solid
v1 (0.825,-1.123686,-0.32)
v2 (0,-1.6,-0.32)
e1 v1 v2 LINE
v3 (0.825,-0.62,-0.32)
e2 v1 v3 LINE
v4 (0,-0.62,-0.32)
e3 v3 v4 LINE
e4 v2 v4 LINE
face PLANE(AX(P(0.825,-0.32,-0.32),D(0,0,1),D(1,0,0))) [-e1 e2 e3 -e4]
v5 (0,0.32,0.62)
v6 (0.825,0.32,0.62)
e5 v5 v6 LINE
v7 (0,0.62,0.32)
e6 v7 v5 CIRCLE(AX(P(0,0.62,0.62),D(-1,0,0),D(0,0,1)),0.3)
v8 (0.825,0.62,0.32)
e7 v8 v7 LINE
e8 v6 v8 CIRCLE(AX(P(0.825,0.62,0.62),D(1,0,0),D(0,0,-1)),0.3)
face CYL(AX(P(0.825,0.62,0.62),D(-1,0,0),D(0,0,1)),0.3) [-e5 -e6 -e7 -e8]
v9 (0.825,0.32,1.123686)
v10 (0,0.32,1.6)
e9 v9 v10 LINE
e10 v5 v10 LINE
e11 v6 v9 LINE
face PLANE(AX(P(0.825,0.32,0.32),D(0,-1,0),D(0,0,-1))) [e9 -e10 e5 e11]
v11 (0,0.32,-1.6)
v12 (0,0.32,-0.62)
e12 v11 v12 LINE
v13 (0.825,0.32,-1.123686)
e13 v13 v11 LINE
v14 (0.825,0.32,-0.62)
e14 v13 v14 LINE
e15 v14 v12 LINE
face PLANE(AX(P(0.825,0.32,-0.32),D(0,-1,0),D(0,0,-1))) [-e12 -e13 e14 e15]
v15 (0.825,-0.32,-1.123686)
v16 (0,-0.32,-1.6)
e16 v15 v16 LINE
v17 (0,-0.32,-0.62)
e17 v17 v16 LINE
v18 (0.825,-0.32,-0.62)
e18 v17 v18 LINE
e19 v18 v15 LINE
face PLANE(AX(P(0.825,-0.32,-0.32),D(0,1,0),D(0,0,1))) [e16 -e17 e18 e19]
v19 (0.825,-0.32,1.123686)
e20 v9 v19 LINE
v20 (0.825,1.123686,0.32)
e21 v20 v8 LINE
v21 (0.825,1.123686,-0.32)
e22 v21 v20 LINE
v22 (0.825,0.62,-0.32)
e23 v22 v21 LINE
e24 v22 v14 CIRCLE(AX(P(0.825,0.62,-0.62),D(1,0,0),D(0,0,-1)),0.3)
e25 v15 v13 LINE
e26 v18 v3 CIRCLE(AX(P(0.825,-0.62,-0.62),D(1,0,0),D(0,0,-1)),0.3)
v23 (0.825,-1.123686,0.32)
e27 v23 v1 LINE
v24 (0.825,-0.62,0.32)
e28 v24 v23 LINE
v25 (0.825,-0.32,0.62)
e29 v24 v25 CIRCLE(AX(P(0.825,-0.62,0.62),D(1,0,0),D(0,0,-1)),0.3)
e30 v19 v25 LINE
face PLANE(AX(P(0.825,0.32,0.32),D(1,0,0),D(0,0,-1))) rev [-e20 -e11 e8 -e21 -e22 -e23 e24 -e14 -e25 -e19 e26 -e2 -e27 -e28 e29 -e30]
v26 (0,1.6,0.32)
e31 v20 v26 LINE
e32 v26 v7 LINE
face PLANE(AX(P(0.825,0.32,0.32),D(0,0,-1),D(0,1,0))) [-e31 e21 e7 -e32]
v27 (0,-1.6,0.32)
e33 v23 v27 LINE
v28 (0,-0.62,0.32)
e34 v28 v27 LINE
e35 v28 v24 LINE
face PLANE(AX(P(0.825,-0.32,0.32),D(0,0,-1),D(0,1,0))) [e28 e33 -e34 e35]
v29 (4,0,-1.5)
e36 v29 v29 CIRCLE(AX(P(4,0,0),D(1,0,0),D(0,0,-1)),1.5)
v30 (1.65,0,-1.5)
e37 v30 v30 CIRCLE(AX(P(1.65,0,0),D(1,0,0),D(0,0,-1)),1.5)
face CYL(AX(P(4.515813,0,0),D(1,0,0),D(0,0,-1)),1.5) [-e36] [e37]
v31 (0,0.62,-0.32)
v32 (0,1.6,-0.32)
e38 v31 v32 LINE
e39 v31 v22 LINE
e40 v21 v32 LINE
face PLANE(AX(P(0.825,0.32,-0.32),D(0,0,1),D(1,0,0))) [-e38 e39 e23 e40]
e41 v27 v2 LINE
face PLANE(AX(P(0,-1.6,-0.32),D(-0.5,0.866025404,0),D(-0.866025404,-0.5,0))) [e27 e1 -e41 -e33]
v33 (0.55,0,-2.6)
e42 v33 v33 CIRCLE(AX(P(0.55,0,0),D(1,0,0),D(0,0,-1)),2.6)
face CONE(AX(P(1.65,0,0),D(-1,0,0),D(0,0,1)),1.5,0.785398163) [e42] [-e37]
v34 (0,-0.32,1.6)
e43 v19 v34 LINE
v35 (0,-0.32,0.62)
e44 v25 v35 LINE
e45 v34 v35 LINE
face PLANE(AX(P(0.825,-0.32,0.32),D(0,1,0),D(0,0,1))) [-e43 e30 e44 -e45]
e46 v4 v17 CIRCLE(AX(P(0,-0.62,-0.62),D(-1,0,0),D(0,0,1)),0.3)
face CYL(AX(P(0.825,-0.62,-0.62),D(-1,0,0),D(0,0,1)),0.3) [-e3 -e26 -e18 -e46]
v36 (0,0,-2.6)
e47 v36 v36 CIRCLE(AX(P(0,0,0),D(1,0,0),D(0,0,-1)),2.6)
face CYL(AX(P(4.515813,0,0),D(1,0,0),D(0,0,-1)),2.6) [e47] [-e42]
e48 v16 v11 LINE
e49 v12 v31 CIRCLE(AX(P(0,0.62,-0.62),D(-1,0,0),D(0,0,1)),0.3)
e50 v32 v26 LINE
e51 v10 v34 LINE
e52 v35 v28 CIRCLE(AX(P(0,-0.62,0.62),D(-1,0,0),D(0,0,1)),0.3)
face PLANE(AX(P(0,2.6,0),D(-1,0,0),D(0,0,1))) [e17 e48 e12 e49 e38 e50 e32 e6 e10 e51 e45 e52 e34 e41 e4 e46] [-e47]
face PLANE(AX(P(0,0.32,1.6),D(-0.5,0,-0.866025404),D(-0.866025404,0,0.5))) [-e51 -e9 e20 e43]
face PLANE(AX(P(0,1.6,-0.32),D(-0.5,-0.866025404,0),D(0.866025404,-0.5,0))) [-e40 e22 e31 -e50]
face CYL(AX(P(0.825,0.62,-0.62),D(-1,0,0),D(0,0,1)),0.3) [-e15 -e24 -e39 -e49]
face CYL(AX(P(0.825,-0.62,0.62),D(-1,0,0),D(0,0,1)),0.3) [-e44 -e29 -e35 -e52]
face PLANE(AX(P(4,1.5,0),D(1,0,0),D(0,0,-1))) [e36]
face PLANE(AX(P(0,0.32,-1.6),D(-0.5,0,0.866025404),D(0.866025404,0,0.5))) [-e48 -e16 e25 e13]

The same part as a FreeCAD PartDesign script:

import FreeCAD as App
import Part
import Sketcher
Q = App.Units.Quantity


def edges_at(feature, points):
    """Names of the edges that pass closest to the given points."""
    edges = feature.Shape.Edges
    near = lambda p: min(range(len(edges)), key=lambda i: edges[i].distToShape(Part.Vertex(*p))[0])
    return sorted({f"Edge{near(p) + 1}" for p in points})


def faces_at(feature, points):
    """Names of the faces that lie closest to the given points."""
    faces = feature.Shape.Faces
    near = lambda p: min(range(len(faces)), key=lambda i: faces[i].distToShape(Part.Vertex(*p))[0])
    return sorted({f"Face{near(p) + 1}" for p in points})


def add_polygon(sketch, points):
    """Adds a closed chain of lines whose ends are joined by coincident constraints."""
    first, n = sketch.GeometryCount, len(points)
    for a, b in zip(points, points[1:] + points[:1]):
        sketch.addGeometry(Part.LineSegment(App.Vector(*a, 0), App.Vector(*b, 0)), False)
    for i in range(n):
        sketch.addConstraint(Sketcher.Constraint("Coincident", first + i, 2, first + (i + 1) % n, 1))

doc = App.newDocument("Part")
params = doc.addObject("Spreadsheet::Sheet", "Params")
for row, (alias, value) in enumerate([
    ("sketch1_width", "4 mm"),
    ("sketch1_height", "2.6 mm"),
    ("sketch1_height2", "1.5 mm"),
    ("sketch1_width2", "2.35 mm"),
    ("revolution_angle", "360 deg"),
    ("sketch2_width", "1.28 mm"),
    ("sketch2_width2", "0.64 mm"),
    ("pocket1_length", "0.825 mm"),
    ("draft_angle", "30 deg"),
    ("fillet_radius", "0.3 mm"),
], start=1):
    params.set(f"A{row}", alias)
    params.set(f"B{row}", "=" + value)
    params.setAlias(f"B{row}", alias)

body = doc.addObject("PartDesign::Body", "Body")

# Sketch on XY plane
sketch1 = body.newObject("Sketcher::SketchObject", "Sketch")
sketch1.AttachmentSupport = (doc.getObject("XY_Plane"), [""])
sketch1.MapMode = "FlatFace"
add_polygon(sketch1, [(4, 1.5), (1.65, 1.5), (0.55, 2.6), (0, 2.6), (0, 0), (4, 0)])  # lines 0-5
sketch1.addConstraint([
    Sketcher.Constraint("Horizontal", 0),
    Sketcher.Constraint("Horizontal", 2),
    Sketcher.Constraint("Vertical", 3),
    Sketcher.Constraint("Horizontal", 4),
    Sketcher.Constraint("Vertical", 5),
    Sketcher.Constraint("Coincident", 3, 2, -1, 1),
    Sketcher.Constraint("DistanceX", 4, 1, 4, 2, 4.0),
    Sketcher.Constraint("Angle", 1, Q("135 deg")),
    Sketcher.Constraint("DistanceY", 3, 2, 3, 1, 2.6),
    Sketcher.Constraint("DistanceY", 5, 1, 5, 2, 1.5),
    Sketcher.Constraint("DistanceX", 0, 2, 0, 1, 2.35),
])
sketch1.setExpression("Constraints[12]", "Params.sketch1_width")
sketch1.setExpression("Constraints[14]", "Params.sketch1_height")
sketch1.setExpression("Constraints[15]", "Params.sketch1_height2")
sketch1.setExpression("Constraints[16]", "Params.sketch1_width2")
revolution = body.newObject("PartDesign::Revolution", "Revolution")
revolution.Profile = sketch1
revolution.ReferenceAxis = (sketch1, ["H_Axis"])
revolution.setExpression("Angle", "Params.revolution_angle")

# Sketch on YZ plane
sketch2 = body.newObject("Sketcher::SketchObject", "Sketch001")
sketch2.AttachmentSupport = (doc.getObject("YZ_Plane"), [""])
sketch2.MapMode = "FlatFace"
add_polygon(sketch2, [(0.32, -0.32), (1.6, -0.32), (1.6, 0.32), (0.32, 0.32), (0.32, 1.6), (-0.32, 1.6), (-0.32, 0.32), (-1.6, 0.32), (-1.6, -0.32), (-0.32, -0.32), (-0.32, -1.6), (0.32, -1.6)])  # lines 0-11
sketch2.addConstraint([
    Sketcher.Constraint("Horizontal", 0),
    Sketcher.Constraint("Vertical", 1),
    Sketcher.Constraint("Horizontal", 2),
    Sketcher.Constraint("Vertical", 3),
    Sketcher.Constraint("Horizontal", 4),
    Sketcher.Constraint("Vertical", 5),
    Sketcher.Constraint("Horizontal", 6),
    Sketcher.Constraint("Vertical", 7),
    Sketcher.Constraint("Horizontal", 8),
    Sketcher.Constraint("Vertical", 9),
    Sketcher.Constraint("Horizontal", 10),
    Sketcher.Constraint("Vertical", 11),
    Sketcher.Constraint("Symmetric", 0, 2, 6, 2, -1, 1),
    Sketcher.Constraint("Symmetric", 2, 2, 8, 2, -1, 1),
    Sketcher.Constraint("Symmetric", 4, 2, 10, 2, -1, 1),
    Sketcher.Constraint("Symmetric", 2, 2, 5, 2, -2),
    Sketcher.Constraint("Equal", 10, 1),
    Sketcher.Constraint("Equal", 8, 3),
    Sketcher.Constraint("DistanceX", 0, 1, 0, 2, 1.28),
    Sketcher.Constraint("DistanceX", 4, 2, 4, 1, 0.64),
])
sketch2.setExpression("Constraints[30]", "Params.sketch2_width")
sketch2.setExpression("Constraints[31]", "Params.sketch2_width2")
pocket1 = body.newObject("PartDesign::Pocket", "Pocket")
pocket1.Profile = sketch2
pocket1.setExpression("Length", "Params.pocket1_length")
pocket1.Reversed = True
doc.recompute()

draft = body.newObject("PartDesign::Draft", "Draft")
draft.Base = (pocket1, faces_at(pocket1, [
    (0.412, 1.6, 0),
    (0.412, 0, 1.6),
    (0.412, -1.6, 0),
    (0.412, 0, -1.6),
]))
draft.NeutralPlane = (doc.getObject("YZ_Plane"), [""])
draft.setExpression("Angle", "Params.draft_angle")
draft.Reversed = True
doc.recompute()

fillet = body.newObject("PartDesign::Fillet", "Fillet")
fillet.Base = (draft, edges_at(draft, [
    (0.412, 0.32, 0.32),
    (0.412, -0.32, 0.32),
    (0.412, -0.32, -0.32),
    (0.412, 0.32, -0.32),
]))
fillet.setExpression("Radius", "Params.fillet_radius")

doc.recompute()
